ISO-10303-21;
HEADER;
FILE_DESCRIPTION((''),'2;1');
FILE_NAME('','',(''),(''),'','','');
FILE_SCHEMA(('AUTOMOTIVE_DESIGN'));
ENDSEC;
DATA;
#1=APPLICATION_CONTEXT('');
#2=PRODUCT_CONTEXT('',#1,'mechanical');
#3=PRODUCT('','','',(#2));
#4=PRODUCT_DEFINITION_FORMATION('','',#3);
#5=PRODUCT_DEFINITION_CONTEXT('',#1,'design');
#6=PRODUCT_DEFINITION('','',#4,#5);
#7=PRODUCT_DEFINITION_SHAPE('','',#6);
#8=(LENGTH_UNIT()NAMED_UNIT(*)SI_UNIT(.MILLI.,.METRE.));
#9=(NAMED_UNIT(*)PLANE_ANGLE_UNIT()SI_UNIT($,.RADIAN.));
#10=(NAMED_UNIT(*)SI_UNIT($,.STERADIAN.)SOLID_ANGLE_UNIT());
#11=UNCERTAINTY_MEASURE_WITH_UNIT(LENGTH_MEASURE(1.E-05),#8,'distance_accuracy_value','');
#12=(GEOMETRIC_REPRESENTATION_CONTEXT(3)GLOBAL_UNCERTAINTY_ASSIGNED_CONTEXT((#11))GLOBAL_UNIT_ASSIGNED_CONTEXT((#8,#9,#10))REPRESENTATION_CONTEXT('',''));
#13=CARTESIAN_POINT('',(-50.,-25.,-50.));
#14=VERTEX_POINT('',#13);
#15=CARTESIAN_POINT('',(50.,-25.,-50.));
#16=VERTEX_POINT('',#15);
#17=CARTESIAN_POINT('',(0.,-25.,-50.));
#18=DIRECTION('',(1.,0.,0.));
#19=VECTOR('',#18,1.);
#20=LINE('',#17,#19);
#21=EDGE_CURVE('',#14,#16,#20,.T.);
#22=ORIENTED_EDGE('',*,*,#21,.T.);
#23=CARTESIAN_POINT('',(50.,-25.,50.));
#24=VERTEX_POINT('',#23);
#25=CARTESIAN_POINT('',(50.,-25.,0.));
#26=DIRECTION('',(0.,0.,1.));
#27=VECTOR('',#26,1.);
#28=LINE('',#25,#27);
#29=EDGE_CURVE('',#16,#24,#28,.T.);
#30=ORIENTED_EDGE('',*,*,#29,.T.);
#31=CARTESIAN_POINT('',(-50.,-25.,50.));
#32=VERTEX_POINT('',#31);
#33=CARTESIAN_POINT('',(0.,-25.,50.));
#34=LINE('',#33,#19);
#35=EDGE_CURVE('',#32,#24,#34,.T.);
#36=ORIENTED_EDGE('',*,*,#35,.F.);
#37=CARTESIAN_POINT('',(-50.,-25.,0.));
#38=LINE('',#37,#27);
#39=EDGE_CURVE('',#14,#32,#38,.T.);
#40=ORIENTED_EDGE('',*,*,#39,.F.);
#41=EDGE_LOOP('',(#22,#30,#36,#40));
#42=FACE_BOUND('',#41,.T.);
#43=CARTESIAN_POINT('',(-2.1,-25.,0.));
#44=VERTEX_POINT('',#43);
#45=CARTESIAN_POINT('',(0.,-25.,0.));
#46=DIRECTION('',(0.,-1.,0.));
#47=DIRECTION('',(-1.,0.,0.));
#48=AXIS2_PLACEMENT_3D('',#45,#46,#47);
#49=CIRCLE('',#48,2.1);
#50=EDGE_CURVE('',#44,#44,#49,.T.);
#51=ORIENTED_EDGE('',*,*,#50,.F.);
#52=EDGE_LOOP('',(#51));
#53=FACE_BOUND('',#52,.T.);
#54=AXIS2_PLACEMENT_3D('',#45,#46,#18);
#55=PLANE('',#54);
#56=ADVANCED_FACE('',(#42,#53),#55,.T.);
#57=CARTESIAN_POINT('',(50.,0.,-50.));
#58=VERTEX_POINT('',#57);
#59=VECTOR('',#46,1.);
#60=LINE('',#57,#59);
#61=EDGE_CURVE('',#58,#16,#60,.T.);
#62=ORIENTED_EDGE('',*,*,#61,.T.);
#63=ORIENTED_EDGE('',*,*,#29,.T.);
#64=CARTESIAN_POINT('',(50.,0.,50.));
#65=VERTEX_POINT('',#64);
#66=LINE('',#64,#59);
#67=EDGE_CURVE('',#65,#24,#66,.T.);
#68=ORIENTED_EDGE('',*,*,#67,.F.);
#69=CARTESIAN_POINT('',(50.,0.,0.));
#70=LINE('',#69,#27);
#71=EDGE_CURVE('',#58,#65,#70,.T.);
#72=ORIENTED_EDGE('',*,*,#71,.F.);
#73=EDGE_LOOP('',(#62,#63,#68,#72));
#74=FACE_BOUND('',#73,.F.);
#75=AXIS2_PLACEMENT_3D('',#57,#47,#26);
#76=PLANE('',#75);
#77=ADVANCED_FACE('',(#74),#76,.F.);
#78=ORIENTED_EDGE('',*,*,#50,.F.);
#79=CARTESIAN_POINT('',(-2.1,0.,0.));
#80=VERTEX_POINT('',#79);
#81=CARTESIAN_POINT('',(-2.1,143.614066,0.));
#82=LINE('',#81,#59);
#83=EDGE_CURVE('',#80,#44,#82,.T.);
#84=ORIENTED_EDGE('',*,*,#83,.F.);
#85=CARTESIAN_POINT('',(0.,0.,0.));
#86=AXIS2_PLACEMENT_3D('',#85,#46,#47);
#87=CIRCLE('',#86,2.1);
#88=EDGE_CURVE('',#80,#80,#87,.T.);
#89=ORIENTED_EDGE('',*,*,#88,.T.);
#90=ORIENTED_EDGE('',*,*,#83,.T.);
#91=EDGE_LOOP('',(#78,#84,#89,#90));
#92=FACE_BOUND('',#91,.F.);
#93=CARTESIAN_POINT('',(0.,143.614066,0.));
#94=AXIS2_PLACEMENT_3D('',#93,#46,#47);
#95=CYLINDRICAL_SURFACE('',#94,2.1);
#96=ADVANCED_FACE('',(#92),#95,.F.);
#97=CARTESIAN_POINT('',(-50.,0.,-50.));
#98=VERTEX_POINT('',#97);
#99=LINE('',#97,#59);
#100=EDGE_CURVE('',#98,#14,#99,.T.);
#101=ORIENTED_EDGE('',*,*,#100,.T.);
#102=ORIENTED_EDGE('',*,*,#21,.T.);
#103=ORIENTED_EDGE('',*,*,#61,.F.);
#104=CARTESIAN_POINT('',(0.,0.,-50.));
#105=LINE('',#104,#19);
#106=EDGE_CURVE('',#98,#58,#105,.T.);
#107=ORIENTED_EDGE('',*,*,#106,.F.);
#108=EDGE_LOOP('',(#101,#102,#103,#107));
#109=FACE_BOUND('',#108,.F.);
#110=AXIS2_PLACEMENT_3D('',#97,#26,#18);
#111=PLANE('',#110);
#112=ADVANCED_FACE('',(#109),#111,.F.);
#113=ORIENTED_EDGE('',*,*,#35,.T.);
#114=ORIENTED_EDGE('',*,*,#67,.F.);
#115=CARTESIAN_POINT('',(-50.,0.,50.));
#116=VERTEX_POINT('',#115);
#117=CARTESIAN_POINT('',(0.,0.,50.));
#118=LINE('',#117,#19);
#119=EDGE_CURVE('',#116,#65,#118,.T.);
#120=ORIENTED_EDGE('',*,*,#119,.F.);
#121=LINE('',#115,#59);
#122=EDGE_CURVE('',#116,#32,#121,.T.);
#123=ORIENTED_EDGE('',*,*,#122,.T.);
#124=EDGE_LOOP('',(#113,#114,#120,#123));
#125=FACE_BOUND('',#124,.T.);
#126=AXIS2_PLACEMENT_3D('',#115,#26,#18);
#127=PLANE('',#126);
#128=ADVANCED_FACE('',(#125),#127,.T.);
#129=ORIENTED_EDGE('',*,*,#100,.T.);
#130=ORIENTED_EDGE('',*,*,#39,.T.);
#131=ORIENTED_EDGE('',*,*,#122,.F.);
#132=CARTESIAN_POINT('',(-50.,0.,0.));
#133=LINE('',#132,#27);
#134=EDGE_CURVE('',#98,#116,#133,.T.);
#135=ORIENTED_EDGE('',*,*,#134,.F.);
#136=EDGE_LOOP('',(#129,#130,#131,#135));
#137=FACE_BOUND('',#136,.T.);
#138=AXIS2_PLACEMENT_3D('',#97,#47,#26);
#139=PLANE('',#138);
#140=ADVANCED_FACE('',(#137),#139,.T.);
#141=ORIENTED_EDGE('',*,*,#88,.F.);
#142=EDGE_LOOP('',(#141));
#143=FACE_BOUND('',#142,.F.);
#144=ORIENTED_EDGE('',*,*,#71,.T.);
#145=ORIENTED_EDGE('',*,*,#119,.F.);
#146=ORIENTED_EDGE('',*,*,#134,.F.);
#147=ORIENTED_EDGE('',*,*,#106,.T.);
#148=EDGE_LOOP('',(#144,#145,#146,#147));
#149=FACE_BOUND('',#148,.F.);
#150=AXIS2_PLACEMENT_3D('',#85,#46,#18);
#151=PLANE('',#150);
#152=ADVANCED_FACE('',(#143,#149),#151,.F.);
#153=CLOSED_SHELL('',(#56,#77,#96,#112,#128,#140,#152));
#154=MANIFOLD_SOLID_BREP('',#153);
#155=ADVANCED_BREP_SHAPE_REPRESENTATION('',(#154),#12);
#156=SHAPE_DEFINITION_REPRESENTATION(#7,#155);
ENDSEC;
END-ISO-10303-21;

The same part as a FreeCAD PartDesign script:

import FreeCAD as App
import Part
import Sketcher
from FreeCAD import Vector

doc = App.newDocument("Part")
body = doc.addObject("PartDesign::Body", "Body")

sketch1 = body.newObject("Sketcher::SketchObject", "Sketch")
sketch1.AttachmentSupport = (doc.getObject("XZ_Plane"), [""])
sketch1.MapMode = "FlatFace"
sketch1.addGeometry([
    Part.LineSegment(Vector(-50, 50, 0), Vector(-50, -50, 0)),
    Part.LineSegment(Vector(-50, -50, 0), Vector(50, -50, 0)),
    Part.LineSegment(Vector(50, -50, 0), Vector(50, 50, 0)),
    Part.LineSegment(Vector(50, 50, 0), Vector(-50, 50, 0)),
], False)
sketch1.addConstraint([
    Sketcher.Constraint("Coincident", 0, 2, 1, 1),
    Sketcher.Constraint("Coincident", 1, 2, 2, 1),
    Sketcher.Constraint("Coincident", 2, 2, 3, 1),
    Sketcher.Constraint("Coincident", 3, 2, 0, 1),
    Sketcher.Constraint("Vertical", 0),
    Sketcher.Constraint("Horizontal", 1),
    Sketcher.Constraint("Vertical", 2),
    Sketcher.Constraint("Horizontal", 3),
    Sketcher.Constraint("Symmetric", 0, 2, 2, 2, -1, 1),
    Sketcher.Constraint("Equal", 3, 0),
    Sketcher.Constraint("DistanceX", 1, 1, 1, 2, 100.0),
])
pad1 = body.newObject("PartDesign::Pad", "Pad")
pad1.Profile = sketch1
pad1.Length = 25

sketch2 = body.newObject("Sketcher::SketchObject", "Sketch001")
sketch2.AttachmentSupport = (doc.getObject("XZ_Plane"), [""])
sketch2.MapMode = "FlatFace"
sketch2.addGeometry(Part.Circle(Vector(0, 0, 0), Vector(0, 0, 1), 2.1), False)
sketch2.addConstraint([
    Sketcher.Constraint("Coincident", 0, 3, -1, 1),
    Sketcher.Constraint("Diameter", 0, 4.2),
])
doc.recompute()
hole = body.newObject("PartDesign::Hole", "Hole")
hole.Profile = sketch2
hole.ThreadType = "None"
hole.Diameter = 4.2
hole.DepthType = "ThroughAll"
hole.Reversed = True

doc.recompute()
